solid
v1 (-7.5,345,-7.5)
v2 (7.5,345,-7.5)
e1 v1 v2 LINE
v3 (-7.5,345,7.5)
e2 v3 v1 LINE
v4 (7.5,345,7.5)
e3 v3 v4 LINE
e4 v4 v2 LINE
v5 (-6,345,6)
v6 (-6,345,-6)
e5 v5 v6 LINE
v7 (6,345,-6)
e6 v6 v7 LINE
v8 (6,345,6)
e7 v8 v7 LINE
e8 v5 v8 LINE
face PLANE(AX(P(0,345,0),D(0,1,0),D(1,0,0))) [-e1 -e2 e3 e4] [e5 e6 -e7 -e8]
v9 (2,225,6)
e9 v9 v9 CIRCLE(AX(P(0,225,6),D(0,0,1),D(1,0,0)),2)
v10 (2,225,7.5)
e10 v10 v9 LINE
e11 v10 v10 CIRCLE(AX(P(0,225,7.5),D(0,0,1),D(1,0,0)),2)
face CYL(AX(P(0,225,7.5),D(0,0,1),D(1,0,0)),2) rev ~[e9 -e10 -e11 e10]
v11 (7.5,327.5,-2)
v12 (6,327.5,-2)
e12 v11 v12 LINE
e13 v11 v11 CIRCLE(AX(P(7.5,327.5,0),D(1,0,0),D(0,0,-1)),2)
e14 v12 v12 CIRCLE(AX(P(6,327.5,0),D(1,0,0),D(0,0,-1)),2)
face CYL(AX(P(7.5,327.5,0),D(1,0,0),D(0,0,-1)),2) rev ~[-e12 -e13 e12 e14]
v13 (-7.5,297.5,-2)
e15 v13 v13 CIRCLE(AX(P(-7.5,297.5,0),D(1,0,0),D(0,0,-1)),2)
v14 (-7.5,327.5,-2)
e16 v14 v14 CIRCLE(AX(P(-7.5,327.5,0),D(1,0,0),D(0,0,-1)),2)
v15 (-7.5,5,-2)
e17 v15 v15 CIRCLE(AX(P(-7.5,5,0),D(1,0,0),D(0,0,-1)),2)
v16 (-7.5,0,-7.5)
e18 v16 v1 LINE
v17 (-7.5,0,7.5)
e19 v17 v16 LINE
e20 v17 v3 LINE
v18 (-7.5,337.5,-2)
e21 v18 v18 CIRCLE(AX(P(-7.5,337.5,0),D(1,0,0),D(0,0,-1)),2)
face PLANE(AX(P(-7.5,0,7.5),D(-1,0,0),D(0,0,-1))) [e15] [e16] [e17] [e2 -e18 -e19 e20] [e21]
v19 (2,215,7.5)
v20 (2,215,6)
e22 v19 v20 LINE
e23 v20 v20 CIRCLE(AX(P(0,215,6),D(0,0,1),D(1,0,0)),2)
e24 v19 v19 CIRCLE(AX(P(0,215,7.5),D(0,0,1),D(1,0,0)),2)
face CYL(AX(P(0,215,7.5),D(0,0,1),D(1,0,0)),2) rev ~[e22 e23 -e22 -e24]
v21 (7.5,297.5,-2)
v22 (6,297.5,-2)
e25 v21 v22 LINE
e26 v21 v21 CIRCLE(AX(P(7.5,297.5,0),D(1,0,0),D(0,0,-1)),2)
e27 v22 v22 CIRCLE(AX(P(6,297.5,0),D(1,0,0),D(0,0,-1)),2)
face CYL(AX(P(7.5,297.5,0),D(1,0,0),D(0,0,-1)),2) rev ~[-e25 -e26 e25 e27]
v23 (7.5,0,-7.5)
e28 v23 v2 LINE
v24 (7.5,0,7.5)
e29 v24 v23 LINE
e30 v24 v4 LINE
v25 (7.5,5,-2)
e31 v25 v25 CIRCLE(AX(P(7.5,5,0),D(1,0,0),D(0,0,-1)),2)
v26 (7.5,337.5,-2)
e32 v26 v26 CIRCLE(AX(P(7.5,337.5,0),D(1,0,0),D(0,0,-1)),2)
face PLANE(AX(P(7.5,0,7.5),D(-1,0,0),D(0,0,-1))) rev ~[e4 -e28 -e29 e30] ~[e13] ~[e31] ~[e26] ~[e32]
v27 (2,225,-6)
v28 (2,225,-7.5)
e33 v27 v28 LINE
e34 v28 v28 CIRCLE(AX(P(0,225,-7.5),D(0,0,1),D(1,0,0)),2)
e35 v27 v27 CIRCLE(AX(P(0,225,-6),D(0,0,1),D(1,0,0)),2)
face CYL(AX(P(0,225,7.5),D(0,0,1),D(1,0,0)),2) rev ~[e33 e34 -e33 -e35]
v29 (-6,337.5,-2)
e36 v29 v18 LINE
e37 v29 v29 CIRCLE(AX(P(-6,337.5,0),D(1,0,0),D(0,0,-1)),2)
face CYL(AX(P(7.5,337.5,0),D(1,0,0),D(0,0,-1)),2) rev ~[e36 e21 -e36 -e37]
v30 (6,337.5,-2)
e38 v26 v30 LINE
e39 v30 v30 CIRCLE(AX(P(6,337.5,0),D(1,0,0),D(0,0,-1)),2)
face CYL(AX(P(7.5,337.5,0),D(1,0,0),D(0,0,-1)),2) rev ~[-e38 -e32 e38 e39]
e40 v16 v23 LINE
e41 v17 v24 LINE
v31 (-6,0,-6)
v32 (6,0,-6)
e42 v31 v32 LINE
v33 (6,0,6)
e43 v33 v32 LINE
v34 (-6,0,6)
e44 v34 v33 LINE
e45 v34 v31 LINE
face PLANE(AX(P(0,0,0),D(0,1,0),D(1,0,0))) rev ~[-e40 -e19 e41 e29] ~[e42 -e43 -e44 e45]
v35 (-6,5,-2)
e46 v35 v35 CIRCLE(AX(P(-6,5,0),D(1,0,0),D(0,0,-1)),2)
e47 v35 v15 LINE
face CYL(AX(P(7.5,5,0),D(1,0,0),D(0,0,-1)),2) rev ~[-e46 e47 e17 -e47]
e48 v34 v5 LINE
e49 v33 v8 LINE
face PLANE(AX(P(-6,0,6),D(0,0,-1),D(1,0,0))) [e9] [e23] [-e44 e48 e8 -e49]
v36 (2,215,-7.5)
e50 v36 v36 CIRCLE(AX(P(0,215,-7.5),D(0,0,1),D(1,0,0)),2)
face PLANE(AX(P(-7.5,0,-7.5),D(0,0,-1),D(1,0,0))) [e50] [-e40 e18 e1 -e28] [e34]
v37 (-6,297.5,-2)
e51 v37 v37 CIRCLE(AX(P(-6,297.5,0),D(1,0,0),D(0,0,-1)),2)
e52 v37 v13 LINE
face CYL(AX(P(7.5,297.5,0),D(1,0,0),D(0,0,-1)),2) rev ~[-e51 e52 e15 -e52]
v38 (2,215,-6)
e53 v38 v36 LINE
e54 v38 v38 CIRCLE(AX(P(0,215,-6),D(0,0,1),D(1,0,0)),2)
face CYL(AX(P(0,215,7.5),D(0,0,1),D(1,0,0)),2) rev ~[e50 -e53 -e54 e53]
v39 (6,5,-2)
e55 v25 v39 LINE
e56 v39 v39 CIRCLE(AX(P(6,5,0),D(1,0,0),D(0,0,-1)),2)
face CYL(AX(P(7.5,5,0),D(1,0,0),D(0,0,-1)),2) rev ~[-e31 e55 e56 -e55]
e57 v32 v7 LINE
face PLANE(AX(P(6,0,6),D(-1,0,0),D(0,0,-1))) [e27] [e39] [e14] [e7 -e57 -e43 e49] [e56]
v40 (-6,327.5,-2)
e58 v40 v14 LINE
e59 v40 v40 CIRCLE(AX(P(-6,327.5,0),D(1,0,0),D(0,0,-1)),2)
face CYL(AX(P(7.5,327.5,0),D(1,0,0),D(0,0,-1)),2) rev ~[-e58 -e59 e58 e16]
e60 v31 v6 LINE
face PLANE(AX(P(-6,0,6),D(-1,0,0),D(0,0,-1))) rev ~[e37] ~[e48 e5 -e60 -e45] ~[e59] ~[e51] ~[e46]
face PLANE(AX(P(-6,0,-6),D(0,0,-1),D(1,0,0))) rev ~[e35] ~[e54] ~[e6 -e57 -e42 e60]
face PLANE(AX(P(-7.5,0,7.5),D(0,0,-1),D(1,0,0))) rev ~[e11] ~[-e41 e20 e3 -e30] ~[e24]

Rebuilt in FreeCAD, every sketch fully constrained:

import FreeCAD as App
import Part
import Sketcher
Q = App.Units.Quantity

doc = App.newDocument("Part")
body = doc.addObject("PartDesign::Body", "Body")

# Sketch on XZ plane
sketch1 = doc.addObject("Sketcher::SketchObject", "Sketch")
body.addObject(sketch1)
sketch1.AttachmentSupport = (doc.XZ_Plane, [""])
sketch1.MapMode = "FlatFace"
sketch1.addGeometry([
    Part.LineSegment(App.Vector(-8, -8, 0), App.Vector(-8, 8, 0)),  # 0
    Part.LineSegment(App.Vector(-8, 8, 0), App.Vector(8, 8, 0)),  # 1
    Part.LineSegment(App.Vector(8, 8, 0), App.Vector(8, -8, 0)),  # 2
    Part.LineSegment(App.Vector(8, -8, 0), App.Vector(-8, -8, 0)),  # 3
    Part.LineSegment(App.Vector(6, 6, 0), App.Vector(-6, 6, 0)),  # 4
    Part.LineSegment(App.Vector(-6, 6, 0), App.Vector(-6, -6, 0)),  # 5
    Part.LineSegment(App.Vector(-6, -6, 0), App.Vector(6, -6, 0)),  # 6
    Part.LineSegment(App.Vector(6, -6, 0), App.Vector(6, 6, 0)),  # 7
], False)
sketch1.addConstraint([
    Sketcher.Constraint("Coincident", 0, 2, 1, 1),
    Sketcher.Constraint("Coincident", 1, 2, 2, 1),
    Sketcher.Constraint("Coincident", 2, 2, 3, 1),
    Sketcher.Constraint("Coincident", 3, 2, 0, 1),
    Sketcher.Constraint("Coincident", 4, 2, 5, 1),
    Sketcher.Constraint("Coincident", 5, 2, 6, 1),
    Sketcher.Constraint("Coincident", 6, 2, 7, 1),
    Sketcher.Constraint("Coincident", 7, 2, 4, 1),
    Sketcher.Constraint("Vertical", 0),
    Sketcher.Constraint("Horizontal", 1),
    Sketcher.Constraint("Vertical", 2),
    Sketcher.Constraint("Horizontal", 3),
    Sketcher.Constraint("Horizontal", 4),
    Sketcher.Constraint("Vertical", 5),
    Sketcher.Constraint("Horizontal", 6),
    Sketcher.Constraint("Vertical", 7),
    Sketcher.Constraint("Symmetric", 0, 2, 2, 2, -1, 1),
    Sketcher.Constraint("Symmetric", 4, 2, 6, 2, -1, 1),
    Sketcher.Constraint("Equal", 3, 0),
    Sketcher.Constraint("Equal", 6, 5),
    Sketcher.Constraint("DistanceX", 1, 1, 1, 2, Q("15 mm")),
    Sketcher.Constraint("DistanceX", 4, 2, 4, 1, Q("12 mm")),
])
pad1 = doc.addObject("PartDesign::Pad", "Pad")
body.addObject(pad1)
pad1.Profile = sketch1
pad1.Length = 345
pad1.Reversed = True

# Sketch on YZ plane
sketch2 = doc.addObject("Sketcher::SketchObject", "Sketch001")
body.addObject(sketch2)
sketch2.AttachmentSupport = (doc.YZ_Plane, [""])
sketch2.MapMode = "FlatFace"
sketch2.AttachmentOffset = App.Placement(App.Vector(0, 0, 7.5), App.Rotation())
sketch2.addGeometry([
    Part.Circle(App.Vector(5, 0, 0), App.Vector(0, 0, 1), 2),
    Part.Circle(App.Vector(297.5, 0, 0), App.Vector(0, 0, 1), 2),
    Part.Circle(App.Vector(337.5, 0, 0), App.Vector(0, 0, 1), 2),
    Part.Circle(App.Vector(327.5, 0, 0), App.Vector(0, 0, 1), 2),
], False)
sketch2.addConstraint([
    Sketcher.Constraint("Equal", 0, 1),
    Sketcher.Constraint("Equal", 1, 2),
    Sketcher.Constraint("Equal", 2, 3),
    Sketcher.Constraint("PointOnObject", 0, 3, -1),
    Sketcher.Constraint("PointOnObject", 1, 3, -1),
    Sketcher.Constraint("PointOnObject", 2, 3, -1),
    Sketcher.Constraint("PointOnObject", 3, 3, -1),
    Sketcher.Constraint("Diameter", 0, Q("4 mm")),
    Sketcher.Constraint("DistanceX", -1, 1, 0, 3, Q("5 mm")),
    Sketcher.Constraint("DistanceX", 1, 3, 2, 3, Q("40 mm")),
    Sketcher.Constraint("DistanceX", 3, 3, 2, 3, Q("10 mm")),
    Sketcher.Constraint("DistanceX", -1, 1, 1, 3, Q("297.5 mm")),
])
pocket1 = doc.addObject("PartDesign::Pocket", "Pocket")
body.addObject(pocket1)
pocket1.Profile = sketch2
pocket1.Type = "ThroughAll"

# Sketch on XY plane
sketch3 = doc.addObject("Sketcher::SketchObject", "Sketch002")
body.addObject(sketch3)
sketch3.AttachmentSupport = (doc.XY_Plane, [""])
sketch3.MapMode = "FlatFace"
sketch3.AttachmentOffset = App.Placement(App.Vector(0, 0, 7.5), App.Rotation())
sketch3.addGeometry([
    Part.Circle(App.Vector(0, 225, 0), App.Vector(0, 0, 1), 2),
    Part.Circle(App.Vector(0, 215, 0), App.Vector(0, 0, 1), 2),
], False)
sketch3.addConstraint([
    Sketcher.Constraint("Equal", 0, 1),
    Sketcher.Constraint("PointOnObject", 0, 3, -2),
    Sketcher.Constraint("PointOnObject", 1, 3, -2),
    Sketcher.Constraint("Diameter", 0, Q("4 mm")),
    Sketcher.Constraint("DistanceY", -1, 1, 0, 3, Q("225 mm")),
    Sketcher.Constraint("DistanceY", -1, 1, 1, 3, Q("215 mm")),
])
pocket2 = doc.addObject("PartDesign::Pocket", "Pocket001")
body.addObject(pocket2)
pocket2.Profile = sketch3
pocket2.Type = "ThroughAll"

doc.recompute()
